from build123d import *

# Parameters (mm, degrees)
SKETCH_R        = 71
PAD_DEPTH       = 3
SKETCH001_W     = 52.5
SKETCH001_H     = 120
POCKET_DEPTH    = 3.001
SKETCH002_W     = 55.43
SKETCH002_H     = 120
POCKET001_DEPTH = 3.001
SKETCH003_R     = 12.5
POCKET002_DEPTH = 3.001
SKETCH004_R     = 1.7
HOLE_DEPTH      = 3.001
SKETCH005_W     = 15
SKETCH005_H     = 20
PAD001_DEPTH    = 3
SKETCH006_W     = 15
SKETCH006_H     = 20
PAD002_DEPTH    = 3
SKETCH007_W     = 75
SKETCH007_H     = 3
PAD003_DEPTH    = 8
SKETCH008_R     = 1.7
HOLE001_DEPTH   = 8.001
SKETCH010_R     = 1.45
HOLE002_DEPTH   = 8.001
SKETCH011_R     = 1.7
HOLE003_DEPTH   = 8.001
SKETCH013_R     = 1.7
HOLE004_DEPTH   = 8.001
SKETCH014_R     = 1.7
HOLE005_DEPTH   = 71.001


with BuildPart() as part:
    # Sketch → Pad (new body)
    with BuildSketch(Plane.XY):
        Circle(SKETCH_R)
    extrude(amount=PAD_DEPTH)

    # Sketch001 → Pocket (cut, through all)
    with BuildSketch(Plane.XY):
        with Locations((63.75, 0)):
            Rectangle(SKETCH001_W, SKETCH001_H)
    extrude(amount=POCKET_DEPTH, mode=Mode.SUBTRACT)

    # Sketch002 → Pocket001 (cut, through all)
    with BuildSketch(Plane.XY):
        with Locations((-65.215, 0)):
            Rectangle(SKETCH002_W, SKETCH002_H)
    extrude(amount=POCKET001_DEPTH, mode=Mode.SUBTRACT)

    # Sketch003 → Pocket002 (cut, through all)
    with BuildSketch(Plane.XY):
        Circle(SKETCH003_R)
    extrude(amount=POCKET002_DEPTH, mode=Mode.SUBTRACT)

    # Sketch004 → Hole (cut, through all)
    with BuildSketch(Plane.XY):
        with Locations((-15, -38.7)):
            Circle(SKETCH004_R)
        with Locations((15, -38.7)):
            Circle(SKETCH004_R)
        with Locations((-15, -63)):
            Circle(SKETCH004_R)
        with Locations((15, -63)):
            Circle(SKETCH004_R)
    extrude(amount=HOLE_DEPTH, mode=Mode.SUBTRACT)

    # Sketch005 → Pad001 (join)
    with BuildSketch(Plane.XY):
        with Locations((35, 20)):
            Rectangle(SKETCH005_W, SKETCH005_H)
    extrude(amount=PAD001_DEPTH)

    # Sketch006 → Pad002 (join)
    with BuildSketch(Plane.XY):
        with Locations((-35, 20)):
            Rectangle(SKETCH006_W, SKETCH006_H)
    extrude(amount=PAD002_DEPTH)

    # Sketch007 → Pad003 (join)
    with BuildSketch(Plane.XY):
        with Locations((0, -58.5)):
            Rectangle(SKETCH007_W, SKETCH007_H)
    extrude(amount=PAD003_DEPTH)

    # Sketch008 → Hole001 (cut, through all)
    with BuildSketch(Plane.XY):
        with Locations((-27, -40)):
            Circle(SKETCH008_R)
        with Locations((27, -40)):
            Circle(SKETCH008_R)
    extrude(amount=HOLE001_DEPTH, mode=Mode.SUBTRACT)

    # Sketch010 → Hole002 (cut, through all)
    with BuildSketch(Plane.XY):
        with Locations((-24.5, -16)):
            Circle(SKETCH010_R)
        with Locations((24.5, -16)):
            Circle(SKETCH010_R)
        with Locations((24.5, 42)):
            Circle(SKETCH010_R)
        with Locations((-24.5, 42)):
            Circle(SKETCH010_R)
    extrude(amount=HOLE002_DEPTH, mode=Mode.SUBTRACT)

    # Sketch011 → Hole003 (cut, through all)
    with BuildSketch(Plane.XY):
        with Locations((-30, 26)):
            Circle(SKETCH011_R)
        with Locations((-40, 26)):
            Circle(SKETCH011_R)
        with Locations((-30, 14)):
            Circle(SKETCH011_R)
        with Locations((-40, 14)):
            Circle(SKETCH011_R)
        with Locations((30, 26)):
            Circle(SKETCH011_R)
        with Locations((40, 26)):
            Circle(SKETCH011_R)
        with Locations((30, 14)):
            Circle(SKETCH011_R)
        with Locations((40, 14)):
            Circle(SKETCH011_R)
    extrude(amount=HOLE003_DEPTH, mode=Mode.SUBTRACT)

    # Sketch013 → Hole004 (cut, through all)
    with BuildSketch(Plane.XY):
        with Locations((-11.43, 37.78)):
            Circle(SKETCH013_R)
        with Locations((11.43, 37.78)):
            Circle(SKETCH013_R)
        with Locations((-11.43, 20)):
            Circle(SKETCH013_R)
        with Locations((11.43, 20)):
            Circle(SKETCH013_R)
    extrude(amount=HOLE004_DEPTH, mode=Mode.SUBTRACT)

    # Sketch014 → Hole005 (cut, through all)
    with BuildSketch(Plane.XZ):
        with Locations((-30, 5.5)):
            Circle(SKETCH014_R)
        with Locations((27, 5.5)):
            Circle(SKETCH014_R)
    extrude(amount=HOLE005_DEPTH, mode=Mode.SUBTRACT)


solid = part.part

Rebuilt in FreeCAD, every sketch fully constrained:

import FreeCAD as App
import Part
import Sketcher
from FreeCAD import Vector


def add_polygon(sketch, points):
    """Adds a closed chain of lines whose ends are joined by coincident constraints."""
    first, n = sketch.GeometryCount, len(points)
    for a, b in zip(points, points[1:] + points[:1]):
        sketch.addGeometry(Part.LineSegment(App.Vector(*a, 0), App.Vector(*b, 0)), False)
    for i in range(n):
        sketch.addConstraint(Sketcher.Constraint("Coincident", first + i, 2, first + (i + 1) % n, 1))

doc = App.newDocument("Part")
body = doc.addObject("PartDesign::Body", "Body")

# Sketch on XY plane
sketch1 = body.newObject("Sketcher::SketchObject", "Sketch")
sketch1.AttachmentSupport = (doc.getObject("XY_Plane"), [""])
sketch1.MapMode = "FlatFace"
sketch1.addGeometry(Part.Circle(Vector(0, 0, 0), Vector(0, 0, 1), 71), False)
sketch1.addConstraint([
    Sketcher.Constraint("Coincident", 0, 3, -1, 1),
    Sketcher.Constraint("Diameter", 0, 142.0),
])
pad1 = body.newObject("PartDesign::Pad", "Pad")
pad1.Profile = sketch1
pad1.Length = 3

# Sketch on XY plane
sketch2 = body.newObject("Sketcher::SketchObject", "Sketch001")
sketch2.AttachmentSupport = (doc.getObject("XY_Plane"), [""])
sketch2.MapMode = "FlatFace"
add_polygon(sketch2, [(37.5, 60), (37.5, -60), (90, -60), (90, 60)])  # lines 0-3
sketch2.addConstraint([
    Sketcher.Constraint("Vertical", 0),
    Sketcher.Constraint("Horizontal", 1),
    Sketcher.Constraint("Vertical", 2),
    Sketcher.Constraint("Horizontal", 3),
    Sketcher.Constraint("DistanceY", 0, 2, 0, 1, 120.0),
    Sketcher.Constraint("DistanceX", 1, 1, 1, 2, 52.5),
    Sketcher.Constraint("DistanceY", 0, 2, -1, 1, 60.0),
    Sketcher.Constraint("DistanceX", -1, 1, 1, 2, 90.0),
])
pocket1 = body.newObject("PartDesign::Pocket", "Pocket")
pocket1.Profile = sketch2
pocket1.Type = "ThroughAll"
pocket1.Reversed = True

# Sketch on XY plane
sketch3 = body.newObject("Sketcher::SketchObject", "Sketch002")
sketch3.AttachmentSupport = (doc.getObject("XY_Plane"), [""])
sketch3.MapMode = "FlatFace"
add_polygon(sketch3, [(-92.93, 60), (-92.93, -60), (-37.5, -60), (-37.5, 60)])  # lines 0-3
sketch3.addConstraint([
    Sketcher.Constraint("Vertical", 0),
    Sketcher.Constraint("Horizontal", 1),
    Sketcher.Constraint("Vertical", 2),
    Sketcher.Constraint("Horizontal", 3),
    Sketcher.Constraint("DistanceY", 0, 2, 0, 1, 120.0),
    Sketcher.Constraint("DistanceY", 0, 2, -1, 1, 60.0),
    Sketcher.Constraint("DistanceX", 1, 1, 1, 2, 55.43),
    Sketcher.Constraint("DistanceX", 1, 2, -1, 1, 37.5),
])
pocket2 = body.newObject("PartDesign::Pocket", "Pocket001")
pocket2.Profile = sketch3
pocket2.Type = "ThroughAll"
pocket2.Reversed = True

# Sketch on XY plane
sketch4 = body.newObject("Sketcher::SketchObject", "Sketch003")
sketch4.AttachmentSupport = (doc.getObject("XY_Plane"), [""])
sketch4.MapMode = "FlatFace"
sketch4.addGeometry(Part.Circle(Vector(0, 0, 0), Vector(0, 0, 1), 12.5), False)
sketch4.addConstraint([
    Sketcher.Constraint("Coincident", 0, 3, -1, 1),
    Sketcher.Constraint("Diameter", 0, 25.0),
])
pocket3 = body.newObject("PartDesign::Pocket", "Pocket002")
pocket3.Profile = sketch4
pocket3.Type = "ThroughAll"
pocket3.Reversed = True

# Sketch on XY plane
sketch5 = body.newObject("Sketcher::SketchObject", "Sketch004")
sketch5.AttachmentSupport = (doc.getObject("XY_Plane"), [""])
sketch5.MapMode = "FlatFace"
sketch5.addGeometry([
    Part.Circle(Vector(-15, -38.7, 0), Vector(0, 0, 1), 1.7),
    Part.Circle(Vector(15, -38.7, 0), Vector(0, 0, 1), 1.7),
    Part.Circle(Vector(-15, -63, 0), Vector(0, 0, 1), 1.7),
    Part.Circle(Vector(15, -63, 0), Vector(0, 0, 1), 1.7),
], False)
sketch5.addConstraint([
    Sketcher.Constraint("Equal", 0, 1),
    Sketcher.Constraint("Equal", 1, 2),
    Sketcher.Constraint("Equal", 2, 3),
    Sketcher.Constraint("Symmetric", 0, 3, 1, 3, -2),
    Sketcher.Constraint("Symmetric", 2, 3, 3, 3, -2),
    Sketcher.Constraint("Vertical", 0, 3, 2, 3),
    Sketcher.Constraint("Diameter", 0, 3.4),
    Sketcher.Constraint("DistanceX", 0, 3, -1, 1, 15.0),
    Sketcher.Constraint("DistanceY", 2, 3, -1, 1, 63.0),
    Sketcher.Constraint("DistanceY", 0, 3, -1, 1, 38.7),
])
pocket4 = body.newObject("PartDesign::Pocket", "Pocket003")
pocket4.Profile = sketch5
pocket4.Type = "ThroughAll"
pocket4.Reversed = True

# Sketch on XY plane
sketch6 = body.newObject("Sketcher::SketchObject", "Sketch005")
sketch6.AttachmentSupport = (doc.getObject("XY_Plane"), [""])
sketch6.MapMode = "FlatFace"
add_polygon(sketch6, [(27.5, 30), (27.5, 10), (42.5, 10), (42.5, 30)])  # lines 0-3
sketch6.addConstraint([
    Sketcher.Constraint("Vertical", 0),
    Sketcher.Constraint("Horizontal", 1),
    Sketcher.Constraint("Vertical", 2),
    Sketcher.Constraint("Horizontal", 3),
    Sketcher.Constraint("DistanceX", 1, 1, 1, 2, 15.0),
    Sketcher.Constraint("DistanceY", 0, 2, 0, 1, 20.0),
    Sketcher.Constraint("DistanceY", -1, 1, 0, 2, 10.0),
    Sketcher.Constraint("DistanceX", -1, 1, 0, 2, 27.5),
])
pad2 = body.newObject("PartDesign::Pad", "Pad001")
pad2.Profile = sketch6
pad2.Length = 3

# Sketch on XY plane
sketch7 = body.newObject("Sketcher::SketchObject", "Sketch006")
sketch7.AttachmentSupport = (doc.getObject("XY_Plane"), [""])
sketch7.MapMode = "FlatFace"
add_polygon(sketch7, [(-42.5, 30), (-42.5, 10), (-27.5, 10), (-27.5, 30)])  # lines 0-3
sketch7.addConstraint([
    Sketcher.Constraint("Vertical", 0),
    Sketcher.Constraint("Horizontal", 1),
    Sketcher.Constraint("Vertical", 2),
    Sketcher.Constraint("Horizontal", 3),
    Sketcher.Constraint("DistanceX", 1, 1, 1, 2, 15.0),
    Sketcher.Constraint("DistanceY", 0, 2, 0, 1, 20.0),
    Sketcher.Constraint("DistanceY", -1, 1, 0, 2, 10.0),
    Sketcher.Constraint("DistanceX", 0, 2, -1, 1, 42.5),
])
pad3 = body.newObject("PartDesign::Pad", "Pad002")
pad3.Profile = sketch7
pad3.Length = 3

# Sketch on XY plane
sketch8 = body.newObject("Sketcher::SketchObject", "Sketch007")
sketch8.AttachmentSupport = (doc.getObject("XY_Plane"), [""])
sketch8.MapMode = "FlatFace"
add_polygon(sketch8, [(-37.5, -57), (-37.5, -60), (37.5, -60), (37.5, -57)])  # lines 0-3
sketch8.addConstraint([
    Sketcher.Constraint("Vertical", 0),
    Sketcher.Constraint("Horizontal", 1),
    Sketcher.Constraint("Vertical", 2),
    Sketcher.Constraint("Horizontal", 3),
    Sketcher.Constraint("DistanceX", 1, 1, 1, 2, 75.0),
    Sketcher.Constraint("DistanceY", 0, 2, 0, 1, 3.0),
    Sketcher.Constraint("DistanceY", 0, 2, -1, 1, 60.0),
    Sketcher.Constraint("DistanceX", 0, 2, -1, 1, 37.5),
])
pad4 = body.newObject("PartDesign::Pad", "Pad003")
pad4.Profile = sketch8
pad4.Length = 8

# Sketch on XY plane
sketch9 = body.newObject("Sketcher::SketchObject", "Sketch008")
sketch9.AttachmentSupport = (doc.getObject("XY_Plane"), [""])
sketch9.MapMode = "FlatFace"
sketch9.addGeometry([
    Part.Circle(Vector(-27, -40, 0), Vector(0, 0, 1), 1.7),
    Part.Circle(Vector(27, -40, 0), Vector(0, 0, 1), 1.7),
], False)
sketch9.addConstraint([
    Sketcher.Constraint("Equal", 0, 1),
    Sketcher.Constraint("Symmetric", 0, 3, 1, 3, -2),
    Sketcher.Constraint("Diameter", 0, 3.4),
    Sketcher.Constraint("DistanceX", 0, 3, -1, 1, 27.0),
    Sketcher.Constraint("DistanceY", 0, 3, -1, 1, 40.0),
])
pocket5 = body.newObject("PartDesign::Pocket", "Pocket004")
pocket5.Profile = sketch9
pocket5.Type = "ThroughAll"
pocket5.Reversed = True

# Sketch on XY plane
sketch10 = body.newObject("Sketcher::SketchObject", "Sketch009")
sketch10.AttachmentSupport = (doc.getObject("XY_Plane"), [""])
sketch10.MapMode = "FlatFace"
sketch10.addGeometry([
    Part.Circle(Vector(-24.5, -16, 0), Vector(0, 0, 1), 1.45),
    Part.Circle(Vector(24.5, -16, 0), Vector(0, 0, 1), 1.45),
    Part.Circle(Vector(24.5, 42, 0), Vector(0, 0, 1), 1.45),
    Part.Circle(Vector(-24.5, 42, 0), Vector(0, 0, 1), 1.45),
], False)
sketch10.addConstraint([
    Sketcher.Constraint("Equal", 0, 1),
    Sketcher.Constraint("Equal", 1, 2),
    Sketcher.Constraint("Equal", 2, 3),
    Sketcher.Constraint("Symmetric", 0, 3, 1, 3, -2),
    Sketcher.Constraint("Symmetric", 2, 3, 3, 3, -2),
    Sketcher.Constraint("Vertical", 1, 3, 2, 3),
    Sketcher.Constraint("Diameter", 0, 2.9),
    Sketcher.Constraint("DistanceY", 0, 3, -1, 1, 16.0),
    Sketcher.Constraint("DistanceY", -1, 1, 2, 3, 42.0),
    Sketcher.Constraint("DistanceX", 0, 3, 1, 3, 49.0),
])
pocket6 = body.newObject("PartDesign::Pocket", "Pocket005")
pocket6.Profile = sketch10
pocket6.Type = "ThroughAll"
pocket6.Reversed = True

# Sketch on XY plane
sketch11 = body.newObject("Sketcher::SketchObject", "Sketch010")
sketch11.AttachmentSupport = (doc.getObject("XY_Plane"), [""])
sketch11.MapMode = "FlatFace"
sketch11.addGeometry([
    Part.Circle(Vector(-30, 26, 0), Vector(0, 0, 1), 1.7),  # 0
    Part.Circle(Vector(-40, 26, 0), Vector(0, 0, 1), 1.7),  # 1
    Part.Circle(Vector(-30, 14, 0), Vector(0, 0, 1), 1.7),  # 2
    Part.Circle(Vector(-40, 14, 0), Vector(0, 0, 1), 1.7),  # 3
    Part.Circle(Vector(30, 26, 0), Vector(0, 0, 1), 1.7),  # 4
    Part.Circle(Vector(40, 26, 0), Vector(0, 0, 1), 1.7),  # 5
    Part.Circle(Vector(30, 14, 0), Vector(0, 0, 1), 1.7),  # 6
    Part.Circle(Vector(40, 14, 0), Vector(0, 0, 1), 1.7),  # 7
], False)
sketch11.addConstraint([
    Sketcher.Constraint("Equal", 0, 1),
    Sketcher.Constraint("Equal", 1, 2),
    Sketcher.Constraint("Equal", 2, 3),
    Sketcher.Constraint("Equal", 3, 4),
    Sketcher.Constraint("Equal", 4, 5),
    Sketcher.Constraint("Equal", 5, 6),
    Sketcher.Constraint("Equal", 6, 7),
    Sketcher.Constraint("Symmetric", 0, 3, 4, 3, -2),
    Sketcher.Constraint("Symmetric", 1, 3, 5, 3, -2),
    Sketcher.Constraint("Symmetric", 2, 3, 6, 3, -2),
    Sketcher.Constraint("Symmetric", 3, 3, 7, 3, -2),
    Sketcher.Constraint("Horizontal", 0, 3, 1, 3),
    Sketcher.Constraint("Horizontal", 2, 3, 3, 3),
    Sketcher.Constraint("Vertical", 0, 3, 2, 3),
    Sketcher.Constraint("Vertical", 1, 3, 3, 3),
    Sketcher.Constraint("Diameter", 0, 3.4),
    Sketcher.Constraint("DistanceX", 0, 3, -1, 1, 30.0),
    Sketcher.Constraint("DistanceY", -1, 1, 0, 3, 26.0),
    Sketcher.Constraint("DistanceX", 1, 3, -1, 1, 40.0),
    Sketcher.Constraint("DistanceY", -1, 1, 2, 3, 14.0),
])
pocket7 = body.newObject("PartDesign::Pocket", "Pocket006")
pocket7.Profile = sketch11
pocket7.Type = "ThroughAll"
pocket7.Reversed = True

# Sketch on XY plane
sketch12 = body.newObject("Sketcher::SketchObject", "Sketch011")
sketch12.AttachmentSupport = (doc.getObject("XY_Plane"), [""])
sketch12.MapMode = "FlatFace"
sketch12.addGeometry([
    Part.Circle(Vector(-11.43, 37.78, 0), Vector(0, 0, 1), 1.7),
    Part.Circle(Vector(11.43, 37.78, 0), Vector(0, 0, 1), 1.7),
    Part.Circle(Vector(-11.43, 20, 0), Vector(0, 0, 1), 1.7),
    Part.Circle(Vector(11.43, 20, 0), Vector(0, 0, 1), 1.7),
], False)
sketch12.addConstraint([
    Sketcher.Constraint("Equal", 0, 1),
    Sketcher.Constraint("Equal", 1, 2),
    Sketcher.Constraint("Equal", 2, 3),
    Sketcher.Constraint("Symmetric", 0, 3, 1, 3, -2),
    Sketcher.Constraint("Symmetric", 2, 3, 3, 3, -2),
    Sketcher.Constraint("Vertical", 0, 3, 2, 3),
    Sketcher.Constraint("Diameter", 0, 3.4),
    Sketcher.Constraint("DistanceY", -1, 1, 2, 3, 20.0),
    Sketcher.Constraint("DistanceX", 0, 3, -1, 1, 11.43),
    Sketcher.Constraint("DistanceY", -1, 1, 0, 3, 37.78),
])
pocket8 = body.newObject("PartDesign::Pocket", "Pocket007")
pocket8.Profile = sketch12
pocket8.Type = "ThroughAll"
pocket8.Reversed = True

# Sketch on XZ plane
sketch13 = body.newObject("Sketcher::SketchObject", "Sketch012")
sketch13.AttachmentSupport = (doc.getObject("XZ_Plane"), [""])
sketch13.MapMode = "FlatFace"
sketch13.addGeometry([
    Part.Circle(Vector(-30, 5.5, 0), Vector(0, 0, 1), 1.7),
    Part.Circle(Vector(27, 5.5, 0), Vector(0, 0, 1), 1.7),
], False)
sketch13.addConstraint([
    Sketcher.Constraint("Equal", 0, 1),
    Sketcher.Constraint("Horizontal", 0, 3, 1, 3),
    Sketcher.Constraint("Diameter", 0, 3.4),
    Sketcher.Constraint("DistanceX", 0, 3, -1, 1, 30.0),
    Sketcher.Constraint("DistanceX", -1, 1, 1, 3, 27.0),
    Sketcher.Constraint("DistanceY", -1, 1, 0, 3, 5.5),
])
pocket9 = body.newObject("PartDesign::Pocket", "Pocket008")
pocket9.Profile = sketch13
pocket9.Type = "ThroughAll"
pocket9.Reversed = True

doc.recompute()
